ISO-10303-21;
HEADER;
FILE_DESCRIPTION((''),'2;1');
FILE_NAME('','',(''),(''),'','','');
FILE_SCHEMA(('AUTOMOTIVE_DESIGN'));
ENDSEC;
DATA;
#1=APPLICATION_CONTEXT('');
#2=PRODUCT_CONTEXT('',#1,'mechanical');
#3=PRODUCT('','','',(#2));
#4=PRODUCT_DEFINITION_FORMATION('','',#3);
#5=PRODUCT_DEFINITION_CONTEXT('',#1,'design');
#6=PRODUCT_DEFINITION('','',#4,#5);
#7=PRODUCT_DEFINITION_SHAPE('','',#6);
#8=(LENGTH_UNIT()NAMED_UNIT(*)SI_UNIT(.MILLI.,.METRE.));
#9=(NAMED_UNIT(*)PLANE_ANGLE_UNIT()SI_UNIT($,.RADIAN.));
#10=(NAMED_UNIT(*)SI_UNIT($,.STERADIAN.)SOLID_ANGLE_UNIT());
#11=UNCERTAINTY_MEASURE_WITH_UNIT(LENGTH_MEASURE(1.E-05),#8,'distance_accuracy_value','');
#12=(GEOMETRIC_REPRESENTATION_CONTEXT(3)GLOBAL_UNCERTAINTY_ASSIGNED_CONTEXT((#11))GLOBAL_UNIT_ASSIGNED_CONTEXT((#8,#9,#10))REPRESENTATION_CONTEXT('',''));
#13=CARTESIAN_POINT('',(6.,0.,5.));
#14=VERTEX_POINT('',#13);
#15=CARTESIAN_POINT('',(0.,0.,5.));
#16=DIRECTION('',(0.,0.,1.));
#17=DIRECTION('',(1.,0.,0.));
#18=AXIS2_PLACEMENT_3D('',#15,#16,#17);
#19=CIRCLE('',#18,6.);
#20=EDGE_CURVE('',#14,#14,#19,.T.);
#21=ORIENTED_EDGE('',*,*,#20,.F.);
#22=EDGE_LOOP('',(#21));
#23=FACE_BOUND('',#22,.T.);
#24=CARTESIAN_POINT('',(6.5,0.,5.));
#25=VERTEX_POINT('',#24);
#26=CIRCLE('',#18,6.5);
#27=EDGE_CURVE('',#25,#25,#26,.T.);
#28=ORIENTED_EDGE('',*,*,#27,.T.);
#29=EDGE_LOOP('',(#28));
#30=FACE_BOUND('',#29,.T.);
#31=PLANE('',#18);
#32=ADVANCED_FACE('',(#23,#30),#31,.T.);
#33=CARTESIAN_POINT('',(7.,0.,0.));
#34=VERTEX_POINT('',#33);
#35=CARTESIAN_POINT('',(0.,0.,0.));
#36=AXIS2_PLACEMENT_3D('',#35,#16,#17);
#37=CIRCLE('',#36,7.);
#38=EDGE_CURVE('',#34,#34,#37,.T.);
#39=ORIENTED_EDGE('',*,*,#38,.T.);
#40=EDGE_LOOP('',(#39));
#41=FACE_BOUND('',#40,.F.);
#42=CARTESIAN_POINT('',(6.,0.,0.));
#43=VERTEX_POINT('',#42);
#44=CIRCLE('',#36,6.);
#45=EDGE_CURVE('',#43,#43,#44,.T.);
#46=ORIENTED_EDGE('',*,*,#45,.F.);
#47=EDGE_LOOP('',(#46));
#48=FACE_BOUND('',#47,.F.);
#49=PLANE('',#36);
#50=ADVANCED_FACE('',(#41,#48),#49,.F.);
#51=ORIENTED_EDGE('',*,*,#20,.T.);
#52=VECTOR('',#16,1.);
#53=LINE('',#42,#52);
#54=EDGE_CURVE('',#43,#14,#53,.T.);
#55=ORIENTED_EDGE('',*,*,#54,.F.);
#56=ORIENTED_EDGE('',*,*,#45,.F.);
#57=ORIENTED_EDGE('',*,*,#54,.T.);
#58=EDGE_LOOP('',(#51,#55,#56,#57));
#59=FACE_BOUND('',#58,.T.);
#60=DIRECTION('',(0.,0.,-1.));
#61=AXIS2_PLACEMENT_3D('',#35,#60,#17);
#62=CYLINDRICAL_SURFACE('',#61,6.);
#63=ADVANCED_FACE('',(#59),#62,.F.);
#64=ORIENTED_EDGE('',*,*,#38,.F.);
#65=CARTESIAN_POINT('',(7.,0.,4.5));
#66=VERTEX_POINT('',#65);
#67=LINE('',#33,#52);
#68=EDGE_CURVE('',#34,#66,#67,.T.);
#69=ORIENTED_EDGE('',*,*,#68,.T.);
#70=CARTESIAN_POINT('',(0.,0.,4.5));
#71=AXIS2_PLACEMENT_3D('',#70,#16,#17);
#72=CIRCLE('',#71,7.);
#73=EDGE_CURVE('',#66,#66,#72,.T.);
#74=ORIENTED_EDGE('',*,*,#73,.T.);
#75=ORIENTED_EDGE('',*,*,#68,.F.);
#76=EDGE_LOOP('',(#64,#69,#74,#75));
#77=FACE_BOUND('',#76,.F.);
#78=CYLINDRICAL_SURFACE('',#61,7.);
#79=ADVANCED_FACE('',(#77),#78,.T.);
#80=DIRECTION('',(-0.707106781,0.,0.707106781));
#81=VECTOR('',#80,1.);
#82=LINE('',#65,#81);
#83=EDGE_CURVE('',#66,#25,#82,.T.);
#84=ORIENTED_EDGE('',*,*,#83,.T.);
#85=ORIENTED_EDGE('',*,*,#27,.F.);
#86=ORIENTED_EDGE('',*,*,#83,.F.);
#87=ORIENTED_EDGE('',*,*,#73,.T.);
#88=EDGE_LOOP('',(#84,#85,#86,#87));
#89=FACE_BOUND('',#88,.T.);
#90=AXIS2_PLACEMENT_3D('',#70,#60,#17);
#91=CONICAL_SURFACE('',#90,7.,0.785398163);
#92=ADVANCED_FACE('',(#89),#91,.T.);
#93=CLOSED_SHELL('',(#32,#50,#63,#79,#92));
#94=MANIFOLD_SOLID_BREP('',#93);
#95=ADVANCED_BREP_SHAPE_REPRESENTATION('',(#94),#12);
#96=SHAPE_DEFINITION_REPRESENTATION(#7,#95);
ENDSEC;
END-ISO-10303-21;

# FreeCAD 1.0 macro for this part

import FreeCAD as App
import Part
import Sketcher
from FreeCAD import Vector
Q = App.Units.Quantity


def edges_at(feature, points):
    """Names of the edges that pass closest to the given points."""
    edges = feature.Shape.Edges
    near = lambda p: min(range(len(edges)), key=lambda i: edges[i].distToShape(Part.Vertex(*p))[0])
    return sorted({f"Edge{near(p) + 1}" for p in points})

doc = App.newDocument("Part")
body = doc.addObject("PartDesign::Body", "Body")

# Sketch on XY plane
sketch1 = body.newObject("Sketcher::SketchObject", "Sketch")
sketch1.AttachmentSupport = (doc.getObject("XY_Plane"), [""])
sketch1.MapMode = "FlatFace"
sketch1.addGeometry([
    Part.Circle(Vector(0, 0, 0), Vector(0, 0, 1), 7),
    Part.Circle(Vector(0, 0, 0), Vector(0, 0, 1), 6),
], False)
sketch1.addConstraint([
    Sketcher.Constraint("Coincident", 0, 3, -1, 1),
    Sketcher.Constraint("Coincident", 1, 3, -1, 1),
    Sketcher.Constraint("Diameter", 0, Q("14 mm")),
    Sketcher.Constraint("Diameter", 1, Q("12 mm")),
])
pad1 = body.newObject("PartDesign::Pad", "Pad")
pad1.Profile = sketch1
pad1.Length = 5
doc.recompute()

chamfer = body.newObject("PartDesign::Chamfer", "Chamfer")
chamfer.Base = (pad1, edges_at(pad1, [(-7, 0, 5)]))
chamfer.Size = 0.5

doc.recompute()
